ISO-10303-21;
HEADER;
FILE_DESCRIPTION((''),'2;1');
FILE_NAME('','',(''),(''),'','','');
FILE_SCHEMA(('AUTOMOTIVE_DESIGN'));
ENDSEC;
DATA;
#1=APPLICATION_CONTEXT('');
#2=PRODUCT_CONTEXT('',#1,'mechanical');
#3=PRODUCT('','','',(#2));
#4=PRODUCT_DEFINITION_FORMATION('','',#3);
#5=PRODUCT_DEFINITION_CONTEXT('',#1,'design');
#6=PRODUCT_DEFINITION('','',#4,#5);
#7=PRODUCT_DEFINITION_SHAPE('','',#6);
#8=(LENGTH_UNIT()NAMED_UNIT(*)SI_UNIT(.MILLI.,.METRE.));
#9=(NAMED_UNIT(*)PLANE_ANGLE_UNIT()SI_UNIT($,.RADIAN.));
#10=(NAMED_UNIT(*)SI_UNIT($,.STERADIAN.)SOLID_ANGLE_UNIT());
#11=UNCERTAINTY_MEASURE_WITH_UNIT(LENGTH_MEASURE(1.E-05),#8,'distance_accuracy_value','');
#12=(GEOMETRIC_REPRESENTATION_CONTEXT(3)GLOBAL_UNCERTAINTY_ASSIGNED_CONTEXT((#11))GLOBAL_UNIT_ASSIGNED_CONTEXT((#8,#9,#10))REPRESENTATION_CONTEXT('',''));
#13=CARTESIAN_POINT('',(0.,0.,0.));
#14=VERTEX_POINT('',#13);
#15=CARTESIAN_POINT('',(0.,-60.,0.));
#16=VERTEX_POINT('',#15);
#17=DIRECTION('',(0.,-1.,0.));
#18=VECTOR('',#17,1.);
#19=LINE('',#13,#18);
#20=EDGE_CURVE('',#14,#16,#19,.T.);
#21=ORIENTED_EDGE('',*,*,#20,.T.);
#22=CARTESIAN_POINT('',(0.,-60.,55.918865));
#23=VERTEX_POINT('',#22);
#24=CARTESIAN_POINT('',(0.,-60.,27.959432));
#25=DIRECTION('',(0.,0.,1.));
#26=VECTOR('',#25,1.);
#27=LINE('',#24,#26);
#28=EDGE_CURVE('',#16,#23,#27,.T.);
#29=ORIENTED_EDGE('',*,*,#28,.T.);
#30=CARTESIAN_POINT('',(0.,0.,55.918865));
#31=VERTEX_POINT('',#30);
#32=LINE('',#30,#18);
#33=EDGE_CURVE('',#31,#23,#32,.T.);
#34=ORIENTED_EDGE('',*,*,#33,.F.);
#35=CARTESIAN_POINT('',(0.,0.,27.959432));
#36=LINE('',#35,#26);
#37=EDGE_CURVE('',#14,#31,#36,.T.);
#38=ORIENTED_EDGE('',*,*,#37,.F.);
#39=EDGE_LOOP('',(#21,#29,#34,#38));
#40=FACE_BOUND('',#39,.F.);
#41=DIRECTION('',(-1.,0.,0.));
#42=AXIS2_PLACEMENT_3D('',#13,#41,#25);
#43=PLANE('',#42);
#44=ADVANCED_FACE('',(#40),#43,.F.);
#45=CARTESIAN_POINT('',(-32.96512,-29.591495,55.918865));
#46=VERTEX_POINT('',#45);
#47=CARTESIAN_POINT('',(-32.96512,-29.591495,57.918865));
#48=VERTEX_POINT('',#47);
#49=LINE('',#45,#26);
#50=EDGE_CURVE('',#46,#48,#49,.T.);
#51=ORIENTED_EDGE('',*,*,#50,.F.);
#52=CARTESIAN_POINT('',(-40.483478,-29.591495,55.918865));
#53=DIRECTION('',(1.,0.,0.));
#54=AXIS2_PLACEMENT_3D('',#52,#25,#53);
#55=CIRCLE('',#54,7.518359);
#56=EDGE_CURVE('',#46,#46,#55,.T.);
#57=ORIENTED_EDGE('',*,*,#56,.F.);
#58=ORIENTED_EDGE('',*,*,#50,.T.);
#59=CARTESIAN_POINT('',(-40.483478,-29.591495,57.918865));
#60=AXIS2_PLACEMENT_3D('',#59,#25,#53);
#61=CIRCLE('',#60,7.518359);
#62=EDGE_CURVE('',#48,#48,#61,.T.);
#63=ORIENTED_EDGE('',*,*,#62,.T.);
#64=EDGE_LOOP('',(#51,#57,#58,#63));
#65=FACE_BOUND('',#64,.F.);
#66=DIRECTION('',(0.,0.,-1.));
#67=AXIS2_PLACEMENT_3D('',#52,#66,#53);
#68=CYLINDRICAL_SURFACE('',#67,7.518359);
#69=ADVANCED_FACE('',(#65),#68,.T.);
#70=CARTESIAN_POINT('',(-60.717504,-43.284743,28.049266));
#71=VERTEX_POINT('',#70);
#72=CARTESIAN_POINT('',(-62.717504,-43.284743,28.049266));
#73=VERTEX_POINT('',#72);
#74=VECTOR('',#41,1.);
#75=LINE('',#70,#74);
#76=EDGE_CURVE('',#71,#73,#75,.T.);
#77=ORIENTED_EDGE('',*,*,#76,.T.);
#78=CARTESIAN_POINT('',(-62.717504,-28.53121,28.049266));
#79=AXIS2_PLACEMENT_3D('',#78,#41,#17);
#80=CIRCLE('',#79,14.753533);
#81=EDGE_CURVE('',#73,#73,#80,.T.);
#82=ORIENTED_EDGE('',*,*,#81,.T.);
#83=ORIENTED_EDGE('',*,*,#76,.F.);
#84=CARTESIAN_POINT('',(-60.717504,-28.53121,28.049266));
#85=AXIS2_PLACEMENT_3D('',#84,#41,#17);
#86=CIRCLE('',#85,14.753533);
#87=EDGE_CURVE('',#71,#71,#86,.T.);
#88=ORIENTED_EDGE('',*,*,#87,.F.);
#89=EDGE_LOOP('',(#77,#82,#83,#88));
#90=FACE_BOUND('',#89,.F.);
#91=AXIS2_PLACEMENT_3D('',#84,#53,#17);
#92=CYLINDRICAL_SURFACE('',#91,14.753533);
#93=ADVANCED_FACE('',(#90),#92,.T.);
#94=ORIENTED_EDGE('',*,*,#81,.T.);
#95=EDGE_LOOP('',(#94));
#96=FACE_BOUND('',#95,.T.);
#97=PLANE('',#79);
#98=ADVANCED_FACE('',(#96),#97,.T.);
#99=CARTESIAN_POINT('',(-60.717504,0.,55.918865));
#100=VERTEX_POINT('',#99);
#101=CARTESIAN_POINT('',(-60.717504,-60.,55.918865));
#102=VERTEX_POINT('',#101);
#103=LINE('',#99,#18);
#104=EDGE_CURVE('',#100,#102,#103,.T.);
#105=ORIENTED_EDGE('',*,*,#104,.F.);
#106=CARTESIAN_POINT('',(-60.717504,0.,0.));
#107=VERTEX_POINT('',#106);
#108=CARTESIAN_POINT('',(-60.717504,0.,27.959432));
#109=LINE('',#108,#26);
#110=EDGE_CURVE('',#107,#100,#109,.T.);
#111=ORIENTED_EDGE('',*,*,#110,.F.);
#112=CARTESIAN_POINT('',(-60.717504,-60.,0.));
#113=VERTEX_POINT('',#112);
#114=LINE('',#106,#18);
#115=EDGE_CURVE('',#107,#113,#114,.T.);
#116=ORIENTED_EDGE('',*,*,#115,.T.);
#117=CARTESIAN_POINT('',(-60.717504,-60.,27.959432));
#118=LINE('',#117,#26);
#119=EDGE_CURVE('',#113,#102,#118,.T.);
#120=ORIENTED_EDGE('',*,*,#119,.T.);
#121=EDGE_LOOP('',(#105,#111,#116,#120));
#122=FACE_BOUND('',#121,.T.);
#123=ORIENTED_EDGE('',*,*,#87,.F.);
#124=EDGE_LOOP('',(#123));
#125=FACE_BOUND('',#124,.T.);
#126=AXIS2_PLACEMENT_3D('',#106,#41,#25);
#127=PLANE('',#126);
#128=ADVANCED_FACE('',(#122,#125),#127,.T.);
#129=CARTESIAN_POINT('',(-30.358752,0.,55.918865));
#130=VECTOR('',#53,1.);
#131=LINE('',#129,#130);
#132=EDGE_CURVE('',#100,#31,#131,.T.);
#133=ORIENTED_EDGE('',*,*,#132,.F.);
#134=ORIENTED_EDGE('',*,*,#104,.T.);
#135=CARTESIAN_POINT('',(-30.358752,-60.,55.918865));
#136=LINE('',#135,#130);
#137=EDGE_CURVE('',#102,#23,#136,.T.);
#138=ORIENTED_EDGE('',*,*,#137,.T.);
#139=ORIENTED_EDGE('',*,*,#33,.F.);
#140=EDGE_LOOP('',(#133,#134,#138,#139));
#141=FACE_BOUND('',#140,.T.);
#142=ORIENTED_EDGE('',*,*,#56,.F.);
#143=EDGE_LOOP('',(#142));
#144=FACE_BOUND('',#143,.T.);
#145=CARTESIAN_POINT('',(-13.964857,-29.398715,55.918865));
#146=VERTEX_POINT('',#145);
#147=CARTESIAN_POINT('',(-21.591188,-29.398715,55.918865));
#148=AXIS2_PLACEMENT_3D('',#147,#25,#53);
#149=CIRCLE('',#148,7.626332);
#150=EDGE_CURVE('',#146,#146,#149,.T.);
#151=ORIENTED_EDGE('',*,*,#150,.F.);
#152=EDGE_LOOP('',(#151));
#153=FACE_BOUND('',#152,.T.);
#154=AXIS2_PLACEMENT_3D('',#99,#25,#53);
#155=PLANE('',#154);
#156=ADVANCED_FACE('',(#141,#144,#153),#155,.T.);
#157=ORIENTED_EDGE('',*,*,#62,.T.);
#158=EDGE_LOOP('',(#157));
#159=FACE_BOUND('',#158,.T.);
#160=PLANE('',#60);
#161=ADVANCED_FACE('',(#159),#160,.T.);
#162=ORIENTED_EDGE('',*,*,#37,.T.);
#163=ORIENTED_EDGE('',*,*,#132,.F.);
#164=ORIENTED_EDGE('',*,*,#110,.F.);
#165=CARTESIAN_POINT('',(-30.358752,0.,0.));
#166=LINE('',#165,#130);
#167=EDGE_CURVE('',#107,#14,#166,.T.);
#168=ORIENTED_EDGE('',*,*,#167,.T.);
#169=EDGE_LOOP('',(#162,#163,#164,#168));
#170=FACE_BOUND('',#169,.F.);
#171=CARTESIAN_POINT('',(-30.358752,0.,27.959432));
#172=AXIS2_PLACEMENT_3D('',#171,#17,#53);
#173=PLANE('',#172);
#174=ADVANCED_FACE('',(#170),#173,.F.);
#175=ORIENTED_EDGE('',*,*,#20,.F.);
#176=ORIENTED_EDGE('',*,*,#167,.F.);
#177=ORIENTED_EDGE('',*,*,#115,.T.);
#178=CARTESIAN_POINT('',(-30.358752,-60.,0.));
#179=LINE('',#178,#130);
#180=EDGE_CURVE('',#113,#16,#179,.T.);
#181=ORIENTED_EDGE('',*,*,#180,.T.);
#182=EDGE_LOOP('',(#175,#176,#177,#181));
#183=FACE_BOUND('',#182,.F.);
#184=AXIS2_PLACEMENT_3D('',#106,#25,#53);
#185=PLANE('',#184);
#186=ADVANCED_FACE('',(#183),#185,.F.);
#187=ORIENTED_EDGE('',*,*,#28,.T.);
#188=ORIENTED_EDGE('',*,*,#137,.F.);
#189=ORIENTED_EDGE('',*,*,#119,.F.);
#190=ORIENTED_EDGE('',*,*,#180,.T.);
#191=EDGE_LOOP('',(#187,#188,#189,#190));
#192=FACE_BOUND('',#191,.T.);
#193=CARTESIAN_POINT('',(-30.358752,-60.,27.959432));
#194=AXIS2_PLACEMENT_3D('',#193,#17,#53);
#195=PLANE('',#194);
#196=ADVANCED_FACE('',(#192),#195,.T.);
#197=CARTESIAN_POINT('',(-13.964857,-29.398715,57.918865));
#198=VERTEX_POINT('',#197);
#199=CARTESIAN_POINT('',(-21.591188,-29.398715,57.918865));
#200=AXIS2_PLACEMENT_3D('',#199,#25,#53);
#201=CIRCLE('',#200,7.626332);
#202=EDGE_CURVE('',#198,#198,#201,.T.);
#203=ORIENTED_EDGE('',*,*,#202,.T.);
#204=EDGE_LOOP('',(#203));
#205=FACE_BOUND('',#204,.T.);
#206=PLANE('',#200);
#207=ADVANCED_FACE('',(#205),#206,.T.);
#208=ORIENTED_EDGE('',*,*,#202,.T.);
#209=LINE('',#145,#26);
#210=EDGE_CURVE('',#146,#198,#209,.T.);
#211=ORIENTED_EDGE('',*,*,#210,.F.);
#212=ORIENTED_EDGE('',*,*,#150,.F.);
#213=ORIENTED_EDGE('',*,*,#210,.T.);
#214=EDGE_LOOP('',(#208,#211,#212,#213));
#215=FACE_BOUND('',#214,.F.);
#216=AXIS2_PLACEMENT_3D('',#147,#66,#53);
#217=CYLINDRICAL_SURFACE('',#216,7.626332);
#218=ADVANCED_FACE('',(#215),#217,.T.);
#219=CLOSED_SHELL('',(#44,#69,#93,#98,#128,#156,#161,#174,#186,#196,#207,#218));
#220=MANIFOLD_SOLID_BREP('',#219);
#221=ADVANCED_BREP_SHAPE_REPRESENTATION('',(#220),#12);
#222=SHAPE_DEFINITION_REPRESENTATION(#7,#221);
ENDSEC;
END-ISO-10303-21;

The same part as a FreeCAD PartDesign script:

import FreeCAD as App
import Part
import Sketcher
from FreeCAD import Vector
Q = App.Units.Quantity


def add_polygon(sketch, points):
    """Adds a closed chain of lines whose ends are joined by coincident constraints."""
    first, n = sketch.GeometryCount, len(points)
    for a, b in zip(points, points[1:] + points[:1]):
        sketch.addGeometry(Part.LineSegment(App.Vector(*a, 0), App.Vector(*b, 0)), False)
    for i in range(n):
        sketch.addConstraint(Sketcher.Constraint("Coincident", first + i, 2, first + (i + 1) % n, 1))

doc = App.newDocument("Part")
body = doc.addObject("PartDesign::Body", "Body")

sketch1 = body.newObject("Sketcher::SketchObject", "Sketch")
sketch1.AttachmentSupport = (doc.getObject("XZ_Plane"), [""])
sketch1.MapMode = "FlatFace"
add_polygon(sketch1, [(-61, 56), (-61, 0), (0, 0), (0, 56)])
sketch1.addConstraint([
    Sketcher.Constraint("Vertical", 0),
    Sketcher.Constraint("Horizontal", 1),
    Sketcher.Constraint("Vertical", 2),
    Sketcher.Constraint("Horizontal", 3),
    Sketcher.Constraint("Coincident", 1, 2, -1, 1),
    Sketcher.Constraint("DistanceX", 1, 1, 1, 2, Q("60.717504 mm")),
    Sketcher.Constraint("DistanceY", 0, 2, 0, 1, Q("55.918865 mm")),
])
pad1 = body.newObject("PartDesign::Pad", "Pad")
pad1.Profile = sketch1
pad1.Length = 60

sketch2 = body.newObject("Sketcher::SketchObject", "Sketch001")
sketch2.AttachmentSupport = (doc.getObject("YZ_Plane"), [""])
sketch2.MapMode = "FlatFace"
sketch2.AttachmentOffset = App.Placement(Vector(0, 0, -60.717504), App.Rotation())
sketch2.addGeometry(Part.Circle(Vector(-29, 28, 0), Vector(0, 0, 1), 15), False)
sketch2.addConstraint([
    Sketcher.Constraint("Diameter", 0, Q("29.507065 mm")),
    Sketcher.Constraint("DistanceX", 0, 3, -1, 1, Q("28.53121 mm")),
    Sketcher.Constraint("DistanceY", -1, 1, 0, 3, Q("28.049266 mm")),
])
pad2 = body.newObject("PartDesign::Pad", "Pad001")
pad2.Profile = sketch2
pad2.Length = 2
pad2.Reversed = True

sketch3 = body.newObject("Sketcher::SketchObject", "Sketch002")
sketch3.AttachmentSupport = (doc.getObject("XY_Plane"), [""])
sketch3.MapMode = "FlatFace"
sketch3.AttachmentOffset = App.Placement(Vector(0, 0, 55.918865), App.Rotation())
sketch3.addGeometry(Part.Circle(Vector(-40, -30, 0), Vector(0, 0, 1), 8), False)
sketch3.addConstraint([
    Sketcher.Constraint("Diameter", 0, Q("15.036717 mm")),
    Sketcher.Constraint("DistanceX", 0, 3, -1, 1, Q("40.483478 mm")),
    Sketcher.Constraint("DistanceY", 0, 3, -1, 1, Q("29.591495 mm")),
])
pad3 = body.newObject("PartDesign::Pad", "Pad002")
pad3.Profile = sketch3
pad3.Length = 2

sketch4 = body.newObject("Sketcher::SketchObject", "Sketch003")
sketch4.AttachmentSupport = (doc.getObject("XY_Plane"), [""])
sketch4.MapMode = "FlatFace"
sketch4.AttachmentOffset = App.Placement(Vector(0, 0, 55.918865), App.Rotation())
sketch4.addGeometry(Part.Circle(Vector(-22, -29, 0), Vector(0, 0, 1), 8), False)
sketch4.addConstraint([
    Sketcher.Constraint("Diameter", 0, Q("15.252664 mm")),
    Sketcher.Constraint("DistanceX", 0, 3, -1, 1, Q("21.591188 mm")),
    Sketcher.Constraint("DistanceY", 0, 3, -1, 1, Q("29.398715 mm")),
])
pad4 = body.newObject("PartDesign::Pad", "Pad003")
pad4.Profile = sketch4
pad4.Length = 2

doc.recompute()
